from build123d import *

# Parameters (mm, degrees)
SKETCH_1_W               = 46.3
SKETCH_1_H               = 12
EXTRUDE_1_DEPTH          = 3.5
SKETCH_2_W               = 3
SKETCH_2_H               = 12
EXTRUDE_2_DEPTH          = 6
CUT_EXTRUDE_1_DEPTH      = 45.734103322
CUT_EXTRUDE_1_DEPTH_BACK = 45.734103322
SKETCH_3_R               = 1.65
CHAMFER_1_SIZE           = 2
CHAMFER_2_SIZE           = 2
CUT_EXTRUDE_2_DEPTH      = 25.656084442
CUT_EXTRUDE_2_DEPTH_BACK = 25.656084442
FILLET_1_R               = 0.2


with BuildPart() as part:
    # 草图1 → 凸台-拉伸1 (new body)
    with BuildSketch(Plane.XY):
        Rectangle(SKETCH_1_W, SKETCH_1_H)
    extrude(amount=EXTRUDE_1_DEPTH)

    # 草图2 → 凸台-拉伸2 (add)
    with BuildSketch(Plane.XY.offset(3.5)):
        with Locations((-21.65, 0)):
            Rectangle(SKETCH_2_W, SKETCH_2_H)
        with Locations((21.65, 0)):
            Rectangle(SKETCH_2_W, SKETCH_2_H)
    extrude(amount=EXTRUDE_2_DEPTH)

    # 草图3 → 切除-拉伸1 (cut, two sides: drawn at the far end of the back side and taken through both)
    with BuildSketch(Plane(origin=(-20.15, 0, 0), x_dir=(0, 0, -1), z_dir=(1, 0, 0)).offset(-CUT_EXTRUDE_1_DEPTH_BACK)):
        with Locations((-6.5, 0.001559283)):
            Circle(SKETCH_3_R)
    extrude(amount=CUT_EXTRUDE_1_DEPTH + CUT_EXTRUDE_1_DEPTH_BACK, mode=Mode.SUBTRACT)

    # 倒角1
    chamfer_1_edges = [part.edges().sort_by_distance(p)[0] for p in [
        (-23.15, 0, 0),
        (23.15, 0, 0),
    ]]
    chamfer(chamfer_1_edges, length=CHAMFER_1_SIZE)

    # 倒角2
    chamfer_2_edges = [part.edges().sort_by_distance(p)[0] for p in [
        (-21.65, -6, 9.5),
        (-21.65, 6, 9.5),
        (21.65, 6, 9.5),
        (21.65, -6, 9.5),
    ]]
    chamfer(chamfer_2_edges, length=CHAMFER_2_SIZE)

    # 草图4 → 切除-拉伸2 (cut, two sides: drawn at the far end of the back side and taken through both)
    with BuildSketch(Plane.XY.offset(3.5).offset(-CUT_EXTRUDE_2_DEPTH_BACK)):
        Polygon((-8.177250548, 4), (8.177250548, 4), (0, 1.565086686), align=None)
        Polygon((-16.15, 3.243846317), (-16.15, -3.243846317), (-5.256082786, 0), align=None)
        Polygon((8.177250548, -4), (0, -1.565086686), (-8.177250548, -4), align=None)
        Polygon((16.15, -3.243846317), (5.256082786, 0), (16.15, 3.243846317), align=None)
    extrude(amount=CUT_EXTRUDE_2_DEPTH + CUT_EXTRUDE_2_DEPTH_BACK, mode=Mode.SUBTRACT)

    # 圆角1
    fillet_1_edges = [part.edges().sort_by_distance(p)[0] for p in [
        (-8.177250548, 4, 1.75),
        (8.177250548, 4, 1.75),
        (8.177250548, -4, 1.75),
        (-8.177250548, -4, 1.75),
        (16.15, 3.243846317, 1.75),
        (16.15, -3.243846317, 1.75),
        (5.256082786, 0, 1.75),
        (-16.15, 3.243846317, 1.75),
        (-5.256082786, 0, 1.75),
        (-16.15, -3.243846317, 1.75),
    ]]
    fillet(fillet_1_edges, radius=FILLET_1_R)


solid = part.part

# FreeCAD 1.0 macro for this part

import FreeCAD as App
import Part
import Sketcher

V = App.Vector
Q = App.Units.Quantity


def edges_at(feature, points):
    """Names of the edges that pass closest to the given points."""
    edges = feature.Shape.Edges
    near = lambda p: min(range(len(edges)), key=lambda i: edges[i].distToShape(Part.Vertex(*p))[0])
    return sorted({f"Edge{near(p) + 1}" for p in points})


def add_polygon(sketch, points):
    """Adds a closed chain of lines whose ends are joined by coincident constraints."""
    first, n = sketch.GeometryCount, len(points)
    for a, b in zip(points, points[1:] + points[:1]):
        sketch.addGeometry(Part.LineSegment(App.Vector(*a, 0), App.Vector(*b, 0)), False)
    for i in range(n):
        sketch.addConstraint(Sketcher.Constraint("Coincident", first + i, 2, first + (i + 1) % n, 1))

doc = App.newDocument("Part")
params = doc.addObject("Spreadsheet::Sheet", "Params")
for row, (alias, value) in enumerate([
    ("sketch1_height", "12 mm"),
    ("sketch1_width", "46.3 mm"),
    ("pad1_length", "3.5 mm"),
    ("sketch2_width", "3 mm"),
    ("sketch2_height", "12 mm"),
    ("pad2_length", "6 mm"),
    ("sketch3_diameter", "3.3 mm"),
    ("chamfer_size", "2 mm"),
    ("chamfer2_size", "2 mm"),
    ("fillet_radius", "0.2 mm"),
], start=1):
    params.set(f"A{row}", alias)
    params.set(f"B{row}", "=" + value)
    params.setAlias(f"B{row}", alias)

body = doc.addObject("PartDesign::Body", "Body")

sketch1 = doc.addObject("Sketcher::SketchObject", "Sketch")
body.addObject(sketch1)
sketch1.AttachmentSupport = (doc.XY_Plane, [""])
sketch1.MapMode = "FlatFace"
add_polygon(sketch1, [(-23.15, 6), (-23.15, -6), (23.15, -6), (23.15, 6)])
sketch1.addConstraint([
    Sketcher.Constraint("Vertical", 0),
    Sketcher.Constraint("Horizontal", 1),
    Sketcher.Constraint("Vertical", 2),
    Sketcher.Constraint("Horizontal", 3),
    Sketcher.Constraint("Symmetric", 0, 2, 2, 2, -1, 1),
    Sketcher.Constraint("DistanceY", 0, 2, 0, 1, Q("12 mm")),
    Sketcher.Constraint("DistanceX", 1, 1, 1, 2, Q("46.3 mm")),
])
sketch1.setExpression("Constraints[9]", "Params.sketch1_height")
sketch1.setExpression("Constraints[10]", "Params.sketch1_width")
pad1 = doc.addObject("PartDesign::Pad", "Pad")
body.addObject(pad1)
pad1.Profile = sketch1
pad1.setExpression("Length", "Params.pad1_length")

sketch2 = doc.addObject("Sketcher::SketchObject", "Sketch001")
body.addObject(sketch2)
sketch2.AttachmentSupport = (doc.XY_Plane, [""])
sketch2.MapMode = "FlatFace"
sketch2.AttachmentOffset = App.Placement(V(0, 0, 3.5), App.Rotation())
add_polygon(sketch2, [(-23.15, 6), (-23.15, -6), (-20.15, -6), (-20.15, 6)])
add_polygon(sketch2, [(20.15, 6), (20.15, -6), (23.15, -6), (23.15, 6)])
sketch2.addConstraint([
    Sketcher.Constraint("Vertical", 0),
    Sketcher.Constraint("Horizontal", 1),
    Sketcher.Constraint("Vertical", 2),
    Sketcher.Constraint("Horizontal", 3),
    Sketcher.Constraint("Vertical", 4),
    Sketcher.Constraint("Horizontal", 5),
    Sketcher.Constraint("Vertical", 6),
    Sketcher.Constraint("Horizontal", 7),
    Sketcher.Constraint("Symmetric", 2, 2, 4, 2, -1, 1),
    Sketcher.Constraint("Symmetric", 0, 2, 6, 2, -1, 1),
    Sketcher.Constraint("Horizontal", 1, 2, 4, 2),
    Sketcher.Constraint("DistanceX", 1, 1, 1, 2, Q("3 mm")),
    Sketcher.Constraint("DistanceY", 0, 2, 0, 1, Q("12 mm")),
    Sketcher.Constraint("DistanceX", 1, 2, 4, 2, Q("40.3 mm")),
])
sketch2.setExpression("Constraints[19]", "Params.sketch2_width")
sketch2.setExpression("Constraints[20]", "Params.sketch2_height")
pad2 = doc.addObject("PartDesign::Pad", "Pad001")
body.addObject(pad2)
pad2.Profile = sketch2
pad2.setExpression("Length", "Params.pad2_length")

sketch3 = doc.addObject("Sketcher::SketchObject", "Sketch002")
body.addObject(sketch3)
sketch3.AttachmentSupport = (doc.YZ_Plane, [""])
sketch3.MapMode = "FlatFace"
sketch3.AttachmentOffset = App.Placement(V(0, 0, -20.15), App.Rotation())
sketch3.addGeometry(Part.Circle(V(0.001559, 6.5, 0), V(0, 0, 1), 1.65), False)
sketch3.addConstraint([
    Sketcher.Constraint("Diameter", 0, Q("3.3 mm")),
    Sketcher.Constraint("DistanceY", -1, 1, 0, 3, Q("6.5 mm")),
    Sketcher.Constraint("DistanceX", -1, 1, 0, 3, Q("0.001559 mm")),
])
sketch3.setExpression("Constraints[0]", "Params.sketch3_diameter")
pocket1 = doc.addObject("PartDesign::Pocket", "Pocket")
body.addObject(pocket1)
pocket1.Profile = sketch3
pocket1.Type = "ThroughAll"
pocket1.Midplane = True
doc.recompute()

chamfer = doc.addObject("PartDesign::Chamfer", "Chamfer")
body.addObject(chamfer)
chamfer.Base = (pocket1, edges_at(pocket1, [(-23.15, 0, 0), (23.15, 0, 0)]))
chamfer.setExpression("Size", "Params.chamfer_size")
doc.recompute()

chamfer2 = doc.addObject("PartDesign::Chamfer", "Chamfer001")
body.addObject(chamfer2)
chamfer2.Base = (chamfer, edges_at(chamfer, [
    (-21.65, -6, 9.5),
    (-21.65, 6, 9.5),
    (21.65, 6, 9.5),
    (21.65, -6, 9.5),
]))
chamfer2.setExpression("Size", "Params.chamfer2_size")

sketch4 = doc.addObject("Sketcher::SketchObject", "Sketch003")
body.addObject(sketch4)
sketch4.AttachmentSupport = (doc.XY_Plane, [""])
sketch4.MapMode = "FlatFace"
sketch4.AttachmentOffset = App.Placement(V(0, 0, 3.5), App.Rotation())
add_polygon(sketch4, [(8.177251, 4), (-8.177251, 4), (0, 1.565087)])
add_polygon(sketch4, [(-16.15, 3.243846), (-16.15, -3.243846), (-5.256083, 0)])
add_polygon(sketch4, [(8.177251, -4), (0, -1.565087), (-8.177251, -4)])
add_polygon(sketch4, [(5.256083, 0), (16.15, -3.243846), (16.15, 3.243846)])
sketch4.addConstraint([
    Sketcher.Constraint("Horizontal", 0),
    Sketcher.Constraint("Vertical", 3),
    Sketcher.Constraint("Horizontal", 8),
    Sketcher.Constraint("Vertical", 10),
    Sketcher.Constraint("Symmetric", 1, 2, 6, 2, -1, 1),
    Sketcher.Constraint("Symmetric", 2, 2, 7, 2, -1, 1),
    Sketcher.Constraint("Symmetric", 5, 2, 9, 2, -1, 1),
    Sketcher.Constraint("Symmetric", 4, 2, 11, 2, -1, 1),
    Sketcher.Constraint("PointOnObject", 1, 2, -2),
    Sketcher.Constraint("PointOnObject", 4, 2, -1),
    Sketcher.Constraint("Parallel", 2, 4),
    Sketcher.Constraint("Parallel", 1, 5),
    Sketcher.Constraint("Parallel", 5, 6),
    Sketcher.Constraint("Parallel", 7, 11),
    Sketcher.Constraint("Horizontal", 3, 2, 9, 2),
    Sketcher.Constraint("DistanceY", -1, 1, 0, 2, Q("4 mm")),
    Sketcher.Constraint("DistanceX", 3, 2, -1, 1, Q("16.15 mm")),
    Sketcher.Constraint("DistanceX", 0, 2, 0, 1, Q("16.354501 mm")),
    Sketcher.Constraint("Distance", 1, Q("8.532071 mm")),
    Sketcher.Constraint("DistanceY", 3, 2, 3, 1, Q("6.487693 mm")),
])
pocket2 = doc.addObject("PartDesign::Pocket", "Pocket001")
body.addObject(pocket2)
pocket2.Profile = sketch4
pocket2.Type = "ThroughAll"
pocket2.Midplane = True
doc.recompute()

fillet = doc.addObject("PartDesign::Fillet", "Fillet")
body.addObject(fillet)
fillet.Base = (pocket2, edges_at(pocket2, [
    (-8.177, 4, 1.75),
    (8.177, 4, 1.75),
    (8.177, -4, 1.75),
    (-8.177, -4, 1.75),
    (16.15, 3.244, 1.75),
    (16.15, -3.244, 1.75),
    (5.256, 0, 1.75),
    (-16.15, 3.244, 1.75),
    (-5.256, 0, 1.75),
    (-16.15, -3.244, 1.75),
]))
fillet.setExpression("Radius", "Params.fillet_radius")

doc.recompute()
